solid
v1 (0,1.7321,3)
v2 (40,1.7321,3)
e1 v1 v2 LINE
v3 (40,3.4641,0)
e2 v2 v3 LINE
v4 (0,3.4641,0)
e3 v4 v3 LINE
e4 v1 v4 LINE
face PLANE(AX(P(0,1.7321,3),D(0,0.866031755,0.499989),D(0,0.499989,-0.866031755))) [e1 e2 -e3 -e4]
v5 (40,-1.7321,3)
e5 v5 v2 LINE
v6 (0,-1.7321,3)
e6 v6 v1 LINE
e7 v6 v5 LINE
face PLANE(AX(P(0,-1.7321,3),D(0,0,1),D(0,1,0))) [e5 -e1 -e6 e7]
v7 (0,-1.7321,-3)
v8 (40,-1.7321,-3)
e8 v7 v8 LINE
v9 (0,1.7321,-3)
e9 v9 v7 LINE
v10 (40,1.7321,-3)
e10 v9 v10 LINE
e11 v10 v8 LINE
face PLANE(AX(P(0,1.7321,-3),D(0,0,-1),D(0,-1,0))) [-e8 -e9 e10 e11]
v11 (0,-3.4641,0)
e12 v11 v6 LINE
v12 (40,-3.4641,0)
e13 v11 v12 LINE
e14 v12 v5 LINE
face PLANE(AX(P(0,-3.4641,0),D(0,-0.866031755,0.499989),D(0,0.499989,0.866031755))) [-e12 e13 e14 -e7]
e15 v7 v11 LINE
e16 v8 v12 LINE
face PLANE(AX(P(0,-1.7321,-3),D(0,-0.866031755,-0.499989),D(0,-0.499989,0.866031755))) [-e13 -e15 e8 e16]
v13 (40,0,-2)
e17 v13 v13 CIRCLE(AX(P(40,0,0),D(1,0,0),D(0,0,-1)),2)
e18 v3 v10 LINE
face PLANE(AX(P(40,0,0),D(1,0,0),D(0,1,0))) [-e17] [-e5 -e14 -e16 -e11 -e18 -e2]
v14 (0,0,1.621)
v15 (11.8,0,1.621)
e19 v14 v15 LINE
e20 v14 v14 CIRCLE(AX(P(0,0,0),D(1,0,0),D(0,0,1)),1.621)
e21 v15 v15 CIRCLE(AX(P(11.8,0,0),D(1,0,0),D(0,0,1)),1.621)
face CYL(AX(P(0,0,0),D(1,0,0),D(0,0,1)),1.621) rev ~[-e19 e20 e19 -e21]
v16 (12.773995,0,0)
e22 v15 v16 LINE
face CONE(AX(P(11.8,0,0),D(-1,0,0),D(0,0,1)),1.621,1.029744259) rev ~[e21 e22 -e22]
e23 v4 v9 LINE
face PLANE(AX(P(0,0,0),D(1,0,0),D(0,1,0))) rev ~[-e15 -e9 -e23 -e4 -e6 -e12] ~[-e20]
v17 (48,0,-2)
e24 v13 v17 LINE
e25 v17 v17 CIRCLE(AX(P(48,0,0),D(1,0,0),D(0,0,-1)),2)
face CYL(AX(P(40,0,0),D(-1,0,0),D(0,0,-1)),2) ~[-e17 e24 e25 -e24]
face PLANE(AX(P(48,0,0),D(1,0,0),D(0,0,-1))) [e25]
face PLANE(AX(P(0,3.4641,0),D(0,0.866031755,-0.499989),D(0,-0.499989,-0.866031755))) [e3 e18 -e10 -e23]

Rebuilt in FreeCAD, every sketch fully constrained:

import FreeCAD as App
import Part
import Sketcher
Q = App.Units.Quantity

doc = App.newDocument("Part")
body = doc.addObject("PartDesign::Body", "Body")

sketch1 = body.newObject("Sketcher::SketchObject", "Sketch")
sketch1.AttachmentSupport = (doc.getObject("YZ_Plane"), [""])
sketch1.MapMode = "FlatFace"
sketch1.addGeometry(Part.LineSegment(App.Vector(-1.7, -3, 0), App.Vector(1.7, -3, 0)), False)
sketch1.addGeometry(Part.LineSegment(App.Vector(1.7, -3, 0), App.Vector(3.5, 0, 0)), False)
sketch1.addGeometry(Part.LineSegment(App.Vector(3.5, 0, 0), App.Vector(1.7, 3, 0)), False)
sketch1.addGeometry(Part.LineSegment(App.Vector(1.7, 3, 0), App.Vector(-1.7, 3, 0)), False)
sketch1.addGeometry(Part.LineSegment(App.Vector(-1.7, 3, 0), App.Vector(-3.5, 0, 0)), False)
sketch1.addGeometry(Part.LineSegment(App.Vector(-3.5, 0, 0), App.Vector(-1.7, -3, 0)), False)
sketch1.addConstraint(Sketcher.Constraint("Coincident", 0, 2, 1, 1))
sketch1.addConstraint(Sketcher.Constraint("Coincident", 1, 2, 2, 1))
sketch1.addConstraint(Sketcher.Constraint("Coincident", 2, 2, 3, 1))
sketch1.addConstraint(Sketcher.Constraint("Coincident", 3, 2, 4, 1))
sketch1.addConstraint(Sketcher.Constraint("Coincident", 4, 2, 5, 1))
sketch1.addConstraint(Sketcher.Constraint("Coincident", 5, 2, 0, 1))
sketch1.addConstraint(Sketcher.Constraint("Horizontal", 0))
sketch1.addConstraint(Sketcher.Constraint("Horizontal", 3))
sketch1.addConstraint(Sketcher.Constraint("Symmetric", 0, 2, 3, 2, -1, 1))
sketch1.addConstraint(Sketcher.Constraint("Symmetric", 1, 2, 4, 2, -1, 1))
sketch1.addConstraint(Sketcher.Constraint("PointOnObject", 1, 2, -1))
sketch1.addConstraint(Sketcher.Constraint("Parallel", 2, 5))
sketch1.addConstraint(Sketcher.Constraint("Vertical", 0, 2, 2, 2))
sketch1.addConstraint(Sketcher.Constraint("DistanceY", 0, 2, 2, 2, 6.0))
sketch1.addConstraint(Sketcher.Constraint("Angle", 1, Q("60.0007 deg")))
sketch1.addConstraint(Sketcher.Constraint("DistanceX", 0, 1, 0, 2, 3.4642))
pad1 = body.newObject("PartDesign::Pad", "Pad")
pad1.Profile = sketch1
pad1.Length = 40

sketch2 = body.newObject("Sketcher::SketchObject", "Sketch001")
sketch2.AttachmentSupport = (doc.getObject("YZ_Plane"), [""])
sketch2.MapMode = "FlatFace"
sketch2.AttachmentOffset = App.Placement(App.Vector(0, 0, 40), App.Rotation())
sketch2.addGeometry(Part.Circle(App.Vector(0, 0, 0), App.Vector(0, 0, 1), 2), False)
sketch2.addConstraint(Sketcher.Constraint("Coincident", 0, 3, -1, 1))
sketch2.addConstraint(Sketcher.Constraint("Diameter", 0, 4.0))
pad2 = body.newObject("PartDesign::Pad", "Pad001")
pad2.Profile = sketch2
pad2.Length = 8

sketch3 = body.newObject("Sketcher::SketchObject", "Sketch002")
sketch3.AttachmentSupport = (doc.getObject("YZ_Plane"), [""])
sketch3.MapMode = "FlatFace"
sketch3.addGeometry(Part.Circle(App.Vector(0, 0, 0), App.Vector(0, 0, 1), 1.6), False)
sketch3.addConstraint(Sketcher.Constraint("Coincident", 0, 3, -1, 1))
sketch3.addConstraint(Sketcher.Constraint("Diameter", 0, 3.242))
doc.recompute()
hole = body.newObject("PartDesign::Hole", "Hole")
hole.Profile = sketch3
hole.ThreadType = "None"
hole.Diameter = 3.242
hole.DepthType = "Dimension"
hole.Depth = 11.8
hole.DrillPoint = "Angled"
hole.DrillPointAngle = 118
hole.Reversed = True

doc.recompute()
